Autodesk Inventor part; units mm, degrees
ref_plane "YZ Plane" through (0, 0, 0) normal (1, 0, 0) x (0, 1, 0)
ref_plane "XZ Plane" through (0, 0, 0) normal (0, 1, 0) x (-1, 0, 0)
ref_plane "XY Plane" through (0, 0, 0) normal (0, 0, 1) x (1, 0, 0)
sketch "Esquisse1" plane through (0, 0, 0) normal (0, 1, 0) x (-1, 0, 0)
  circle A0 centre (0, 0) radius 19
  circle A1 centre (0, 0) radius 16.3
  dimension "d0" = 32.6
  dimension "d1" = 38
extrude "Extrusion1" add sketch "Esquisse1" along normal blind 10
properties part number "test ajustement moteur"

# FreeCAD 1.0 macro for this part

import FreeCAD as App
import Part
import Sketcher

doc = App.newDocument("Part")
body = doc.addObject("PartDesign::Body", "Body")

sketch1 = doc.addObject("Sketcher::SketchObject", "Sketch")
body.addObject(sketch1)
sketch1.AttachmentSupport = (doc.XZ_Plane, [""])
sketch1.MapMode = "FlatFace"
sketch1.addGeometry([
    Part.Circle(App.Vector(0, 0, 0), App.Vector(0, 0, 1), 19),
    Part.Circle(App.Vector(0, 0, 0), App.Vector(0, 0, 1), 16.3),
], False)
sketch1.addConstraint([
    Sketcher.Constraint("Coincident", 0, 3, -1, 1),
    Sketcher.Constraint("Coincident", 1, 3, -1, 1),
    Sketcher.Constraint("Diameter", 0, 38.0),
    Sketcher.Constraint("Diameter", 1, 32.6),
])
pad1 = doc.addObject("PartDesign::Pad", "Pad")
body.addObject(pad1)
pad1.Profile = sketch1
pad1.Length = 10
pad1.Reversed = True

doc.recompute()
